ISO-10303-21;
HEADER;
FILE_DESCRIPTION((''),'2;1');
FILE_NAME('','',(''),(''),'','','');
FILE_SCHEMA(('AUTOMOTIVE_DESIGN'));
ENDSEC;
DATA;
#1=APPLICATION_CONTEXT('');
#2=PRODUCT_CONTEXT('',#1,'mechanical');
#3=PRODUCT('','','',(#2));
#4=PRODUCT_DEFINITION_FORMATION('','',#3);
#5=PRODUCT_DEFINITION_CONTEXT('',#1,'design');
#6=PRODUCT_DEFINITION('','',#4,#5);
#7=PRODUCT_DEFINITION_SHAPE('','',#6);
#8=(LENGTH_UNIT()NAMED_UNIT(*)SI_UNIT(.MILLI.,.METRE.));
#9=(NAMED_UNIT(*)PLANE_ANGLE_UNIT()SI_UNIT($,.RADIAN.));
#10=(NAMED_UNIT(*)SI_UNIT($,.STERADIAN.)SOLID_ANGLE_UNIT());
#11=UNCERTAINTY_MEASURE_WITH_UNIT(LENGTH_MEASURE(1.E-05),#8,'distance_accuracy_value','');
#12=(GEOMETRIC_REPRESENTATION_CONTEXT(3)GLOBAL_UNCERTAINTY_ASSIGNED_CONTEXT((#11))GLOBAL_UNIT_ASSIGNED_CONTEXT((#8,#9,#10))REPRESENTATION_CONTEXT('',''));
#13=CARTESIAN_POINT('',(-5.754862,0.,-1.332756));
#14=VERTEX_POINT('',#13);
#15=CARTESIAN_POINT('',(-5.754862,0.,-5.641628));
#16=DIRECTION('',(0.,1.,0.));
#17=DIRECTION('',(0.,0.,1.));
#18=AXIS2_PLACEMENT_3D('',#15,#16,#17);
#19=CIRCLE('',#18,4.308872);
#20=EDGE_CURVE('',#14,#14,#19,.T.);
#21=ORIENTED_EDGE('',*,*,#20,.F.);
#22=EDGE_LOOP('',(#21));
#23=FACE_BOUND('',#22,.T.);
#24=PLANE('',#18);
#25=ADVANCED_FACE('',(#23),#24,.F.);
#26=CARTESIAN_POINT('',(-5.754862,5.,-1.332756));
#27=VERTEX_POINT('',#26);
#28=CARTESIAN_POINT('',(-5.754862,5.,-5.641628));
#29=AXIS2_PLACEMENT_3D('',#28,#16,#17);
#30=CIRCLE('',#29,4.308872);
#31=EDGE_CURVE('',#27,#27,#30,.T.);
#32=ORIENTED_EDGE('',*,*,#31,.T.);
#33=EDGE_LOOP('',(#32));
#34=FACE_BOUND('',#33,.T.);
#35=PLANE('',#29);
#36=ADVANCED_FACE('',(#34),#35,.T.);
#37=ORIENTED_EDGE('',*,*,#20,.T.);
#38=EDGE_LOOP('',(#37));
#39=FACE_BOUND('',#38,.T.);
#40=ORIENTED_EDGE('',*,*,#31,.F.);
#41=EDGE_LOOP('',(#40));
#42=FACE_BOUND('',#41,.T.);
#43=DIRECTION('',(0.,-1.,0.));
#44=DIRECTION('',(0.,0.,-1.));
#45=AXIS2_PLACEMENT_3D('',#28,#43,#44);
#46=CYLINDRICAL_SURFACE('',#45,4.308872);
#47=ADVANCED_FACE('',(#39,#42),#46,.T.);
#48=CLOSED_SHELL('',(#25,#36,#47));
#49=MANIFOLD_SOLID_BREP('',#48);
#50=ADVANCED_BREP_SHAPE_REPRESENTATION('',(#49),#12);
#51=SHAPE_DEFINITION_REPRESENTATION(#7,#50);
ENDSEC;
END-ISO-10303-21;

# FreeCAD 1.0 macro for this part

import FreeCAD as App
import Part
import Sketcher
Q = App.Units.Quantity

doc = App.newDocument("Part")
body = doc.addObject("PartDesign::Body", "Body")

# Sketch on XZ plane
sketch1 = doc.addObject("Sketcher::SketchObject", "Sketch")
body.addObject(sketch1)
sketch1.AttachmentSupport = (doc.XZ_Plane, [""])
sketch1.MapMode = "FlatFace"
sketch1.addGeometry(Part.Circle(App.Vector(-5.8, -5.6, 0), App.Vector(0, 0, 1), 4.3), False)
sketch1.addConstraint(Sketcher.Constraint("Diameter", 0, Q("8.617744 mm")))
sketch1.addConstraint(Sketcher.Constraint("DistanceY", 0, 3, -1, 1, Q("5.641628 mm")))
sketch1.addConstraint(Sketcher.Constraint("DistanceX", 0, 3, -1, 1, Q("5.754862 mm")))
pad1 = doc.addObject("PartDesign::Pad", "Pad")
body.addObject(pad1)
pad1.Profile = sketch1
pad1.Length = 5
pad1.Reversed = True

doc.recompute()
